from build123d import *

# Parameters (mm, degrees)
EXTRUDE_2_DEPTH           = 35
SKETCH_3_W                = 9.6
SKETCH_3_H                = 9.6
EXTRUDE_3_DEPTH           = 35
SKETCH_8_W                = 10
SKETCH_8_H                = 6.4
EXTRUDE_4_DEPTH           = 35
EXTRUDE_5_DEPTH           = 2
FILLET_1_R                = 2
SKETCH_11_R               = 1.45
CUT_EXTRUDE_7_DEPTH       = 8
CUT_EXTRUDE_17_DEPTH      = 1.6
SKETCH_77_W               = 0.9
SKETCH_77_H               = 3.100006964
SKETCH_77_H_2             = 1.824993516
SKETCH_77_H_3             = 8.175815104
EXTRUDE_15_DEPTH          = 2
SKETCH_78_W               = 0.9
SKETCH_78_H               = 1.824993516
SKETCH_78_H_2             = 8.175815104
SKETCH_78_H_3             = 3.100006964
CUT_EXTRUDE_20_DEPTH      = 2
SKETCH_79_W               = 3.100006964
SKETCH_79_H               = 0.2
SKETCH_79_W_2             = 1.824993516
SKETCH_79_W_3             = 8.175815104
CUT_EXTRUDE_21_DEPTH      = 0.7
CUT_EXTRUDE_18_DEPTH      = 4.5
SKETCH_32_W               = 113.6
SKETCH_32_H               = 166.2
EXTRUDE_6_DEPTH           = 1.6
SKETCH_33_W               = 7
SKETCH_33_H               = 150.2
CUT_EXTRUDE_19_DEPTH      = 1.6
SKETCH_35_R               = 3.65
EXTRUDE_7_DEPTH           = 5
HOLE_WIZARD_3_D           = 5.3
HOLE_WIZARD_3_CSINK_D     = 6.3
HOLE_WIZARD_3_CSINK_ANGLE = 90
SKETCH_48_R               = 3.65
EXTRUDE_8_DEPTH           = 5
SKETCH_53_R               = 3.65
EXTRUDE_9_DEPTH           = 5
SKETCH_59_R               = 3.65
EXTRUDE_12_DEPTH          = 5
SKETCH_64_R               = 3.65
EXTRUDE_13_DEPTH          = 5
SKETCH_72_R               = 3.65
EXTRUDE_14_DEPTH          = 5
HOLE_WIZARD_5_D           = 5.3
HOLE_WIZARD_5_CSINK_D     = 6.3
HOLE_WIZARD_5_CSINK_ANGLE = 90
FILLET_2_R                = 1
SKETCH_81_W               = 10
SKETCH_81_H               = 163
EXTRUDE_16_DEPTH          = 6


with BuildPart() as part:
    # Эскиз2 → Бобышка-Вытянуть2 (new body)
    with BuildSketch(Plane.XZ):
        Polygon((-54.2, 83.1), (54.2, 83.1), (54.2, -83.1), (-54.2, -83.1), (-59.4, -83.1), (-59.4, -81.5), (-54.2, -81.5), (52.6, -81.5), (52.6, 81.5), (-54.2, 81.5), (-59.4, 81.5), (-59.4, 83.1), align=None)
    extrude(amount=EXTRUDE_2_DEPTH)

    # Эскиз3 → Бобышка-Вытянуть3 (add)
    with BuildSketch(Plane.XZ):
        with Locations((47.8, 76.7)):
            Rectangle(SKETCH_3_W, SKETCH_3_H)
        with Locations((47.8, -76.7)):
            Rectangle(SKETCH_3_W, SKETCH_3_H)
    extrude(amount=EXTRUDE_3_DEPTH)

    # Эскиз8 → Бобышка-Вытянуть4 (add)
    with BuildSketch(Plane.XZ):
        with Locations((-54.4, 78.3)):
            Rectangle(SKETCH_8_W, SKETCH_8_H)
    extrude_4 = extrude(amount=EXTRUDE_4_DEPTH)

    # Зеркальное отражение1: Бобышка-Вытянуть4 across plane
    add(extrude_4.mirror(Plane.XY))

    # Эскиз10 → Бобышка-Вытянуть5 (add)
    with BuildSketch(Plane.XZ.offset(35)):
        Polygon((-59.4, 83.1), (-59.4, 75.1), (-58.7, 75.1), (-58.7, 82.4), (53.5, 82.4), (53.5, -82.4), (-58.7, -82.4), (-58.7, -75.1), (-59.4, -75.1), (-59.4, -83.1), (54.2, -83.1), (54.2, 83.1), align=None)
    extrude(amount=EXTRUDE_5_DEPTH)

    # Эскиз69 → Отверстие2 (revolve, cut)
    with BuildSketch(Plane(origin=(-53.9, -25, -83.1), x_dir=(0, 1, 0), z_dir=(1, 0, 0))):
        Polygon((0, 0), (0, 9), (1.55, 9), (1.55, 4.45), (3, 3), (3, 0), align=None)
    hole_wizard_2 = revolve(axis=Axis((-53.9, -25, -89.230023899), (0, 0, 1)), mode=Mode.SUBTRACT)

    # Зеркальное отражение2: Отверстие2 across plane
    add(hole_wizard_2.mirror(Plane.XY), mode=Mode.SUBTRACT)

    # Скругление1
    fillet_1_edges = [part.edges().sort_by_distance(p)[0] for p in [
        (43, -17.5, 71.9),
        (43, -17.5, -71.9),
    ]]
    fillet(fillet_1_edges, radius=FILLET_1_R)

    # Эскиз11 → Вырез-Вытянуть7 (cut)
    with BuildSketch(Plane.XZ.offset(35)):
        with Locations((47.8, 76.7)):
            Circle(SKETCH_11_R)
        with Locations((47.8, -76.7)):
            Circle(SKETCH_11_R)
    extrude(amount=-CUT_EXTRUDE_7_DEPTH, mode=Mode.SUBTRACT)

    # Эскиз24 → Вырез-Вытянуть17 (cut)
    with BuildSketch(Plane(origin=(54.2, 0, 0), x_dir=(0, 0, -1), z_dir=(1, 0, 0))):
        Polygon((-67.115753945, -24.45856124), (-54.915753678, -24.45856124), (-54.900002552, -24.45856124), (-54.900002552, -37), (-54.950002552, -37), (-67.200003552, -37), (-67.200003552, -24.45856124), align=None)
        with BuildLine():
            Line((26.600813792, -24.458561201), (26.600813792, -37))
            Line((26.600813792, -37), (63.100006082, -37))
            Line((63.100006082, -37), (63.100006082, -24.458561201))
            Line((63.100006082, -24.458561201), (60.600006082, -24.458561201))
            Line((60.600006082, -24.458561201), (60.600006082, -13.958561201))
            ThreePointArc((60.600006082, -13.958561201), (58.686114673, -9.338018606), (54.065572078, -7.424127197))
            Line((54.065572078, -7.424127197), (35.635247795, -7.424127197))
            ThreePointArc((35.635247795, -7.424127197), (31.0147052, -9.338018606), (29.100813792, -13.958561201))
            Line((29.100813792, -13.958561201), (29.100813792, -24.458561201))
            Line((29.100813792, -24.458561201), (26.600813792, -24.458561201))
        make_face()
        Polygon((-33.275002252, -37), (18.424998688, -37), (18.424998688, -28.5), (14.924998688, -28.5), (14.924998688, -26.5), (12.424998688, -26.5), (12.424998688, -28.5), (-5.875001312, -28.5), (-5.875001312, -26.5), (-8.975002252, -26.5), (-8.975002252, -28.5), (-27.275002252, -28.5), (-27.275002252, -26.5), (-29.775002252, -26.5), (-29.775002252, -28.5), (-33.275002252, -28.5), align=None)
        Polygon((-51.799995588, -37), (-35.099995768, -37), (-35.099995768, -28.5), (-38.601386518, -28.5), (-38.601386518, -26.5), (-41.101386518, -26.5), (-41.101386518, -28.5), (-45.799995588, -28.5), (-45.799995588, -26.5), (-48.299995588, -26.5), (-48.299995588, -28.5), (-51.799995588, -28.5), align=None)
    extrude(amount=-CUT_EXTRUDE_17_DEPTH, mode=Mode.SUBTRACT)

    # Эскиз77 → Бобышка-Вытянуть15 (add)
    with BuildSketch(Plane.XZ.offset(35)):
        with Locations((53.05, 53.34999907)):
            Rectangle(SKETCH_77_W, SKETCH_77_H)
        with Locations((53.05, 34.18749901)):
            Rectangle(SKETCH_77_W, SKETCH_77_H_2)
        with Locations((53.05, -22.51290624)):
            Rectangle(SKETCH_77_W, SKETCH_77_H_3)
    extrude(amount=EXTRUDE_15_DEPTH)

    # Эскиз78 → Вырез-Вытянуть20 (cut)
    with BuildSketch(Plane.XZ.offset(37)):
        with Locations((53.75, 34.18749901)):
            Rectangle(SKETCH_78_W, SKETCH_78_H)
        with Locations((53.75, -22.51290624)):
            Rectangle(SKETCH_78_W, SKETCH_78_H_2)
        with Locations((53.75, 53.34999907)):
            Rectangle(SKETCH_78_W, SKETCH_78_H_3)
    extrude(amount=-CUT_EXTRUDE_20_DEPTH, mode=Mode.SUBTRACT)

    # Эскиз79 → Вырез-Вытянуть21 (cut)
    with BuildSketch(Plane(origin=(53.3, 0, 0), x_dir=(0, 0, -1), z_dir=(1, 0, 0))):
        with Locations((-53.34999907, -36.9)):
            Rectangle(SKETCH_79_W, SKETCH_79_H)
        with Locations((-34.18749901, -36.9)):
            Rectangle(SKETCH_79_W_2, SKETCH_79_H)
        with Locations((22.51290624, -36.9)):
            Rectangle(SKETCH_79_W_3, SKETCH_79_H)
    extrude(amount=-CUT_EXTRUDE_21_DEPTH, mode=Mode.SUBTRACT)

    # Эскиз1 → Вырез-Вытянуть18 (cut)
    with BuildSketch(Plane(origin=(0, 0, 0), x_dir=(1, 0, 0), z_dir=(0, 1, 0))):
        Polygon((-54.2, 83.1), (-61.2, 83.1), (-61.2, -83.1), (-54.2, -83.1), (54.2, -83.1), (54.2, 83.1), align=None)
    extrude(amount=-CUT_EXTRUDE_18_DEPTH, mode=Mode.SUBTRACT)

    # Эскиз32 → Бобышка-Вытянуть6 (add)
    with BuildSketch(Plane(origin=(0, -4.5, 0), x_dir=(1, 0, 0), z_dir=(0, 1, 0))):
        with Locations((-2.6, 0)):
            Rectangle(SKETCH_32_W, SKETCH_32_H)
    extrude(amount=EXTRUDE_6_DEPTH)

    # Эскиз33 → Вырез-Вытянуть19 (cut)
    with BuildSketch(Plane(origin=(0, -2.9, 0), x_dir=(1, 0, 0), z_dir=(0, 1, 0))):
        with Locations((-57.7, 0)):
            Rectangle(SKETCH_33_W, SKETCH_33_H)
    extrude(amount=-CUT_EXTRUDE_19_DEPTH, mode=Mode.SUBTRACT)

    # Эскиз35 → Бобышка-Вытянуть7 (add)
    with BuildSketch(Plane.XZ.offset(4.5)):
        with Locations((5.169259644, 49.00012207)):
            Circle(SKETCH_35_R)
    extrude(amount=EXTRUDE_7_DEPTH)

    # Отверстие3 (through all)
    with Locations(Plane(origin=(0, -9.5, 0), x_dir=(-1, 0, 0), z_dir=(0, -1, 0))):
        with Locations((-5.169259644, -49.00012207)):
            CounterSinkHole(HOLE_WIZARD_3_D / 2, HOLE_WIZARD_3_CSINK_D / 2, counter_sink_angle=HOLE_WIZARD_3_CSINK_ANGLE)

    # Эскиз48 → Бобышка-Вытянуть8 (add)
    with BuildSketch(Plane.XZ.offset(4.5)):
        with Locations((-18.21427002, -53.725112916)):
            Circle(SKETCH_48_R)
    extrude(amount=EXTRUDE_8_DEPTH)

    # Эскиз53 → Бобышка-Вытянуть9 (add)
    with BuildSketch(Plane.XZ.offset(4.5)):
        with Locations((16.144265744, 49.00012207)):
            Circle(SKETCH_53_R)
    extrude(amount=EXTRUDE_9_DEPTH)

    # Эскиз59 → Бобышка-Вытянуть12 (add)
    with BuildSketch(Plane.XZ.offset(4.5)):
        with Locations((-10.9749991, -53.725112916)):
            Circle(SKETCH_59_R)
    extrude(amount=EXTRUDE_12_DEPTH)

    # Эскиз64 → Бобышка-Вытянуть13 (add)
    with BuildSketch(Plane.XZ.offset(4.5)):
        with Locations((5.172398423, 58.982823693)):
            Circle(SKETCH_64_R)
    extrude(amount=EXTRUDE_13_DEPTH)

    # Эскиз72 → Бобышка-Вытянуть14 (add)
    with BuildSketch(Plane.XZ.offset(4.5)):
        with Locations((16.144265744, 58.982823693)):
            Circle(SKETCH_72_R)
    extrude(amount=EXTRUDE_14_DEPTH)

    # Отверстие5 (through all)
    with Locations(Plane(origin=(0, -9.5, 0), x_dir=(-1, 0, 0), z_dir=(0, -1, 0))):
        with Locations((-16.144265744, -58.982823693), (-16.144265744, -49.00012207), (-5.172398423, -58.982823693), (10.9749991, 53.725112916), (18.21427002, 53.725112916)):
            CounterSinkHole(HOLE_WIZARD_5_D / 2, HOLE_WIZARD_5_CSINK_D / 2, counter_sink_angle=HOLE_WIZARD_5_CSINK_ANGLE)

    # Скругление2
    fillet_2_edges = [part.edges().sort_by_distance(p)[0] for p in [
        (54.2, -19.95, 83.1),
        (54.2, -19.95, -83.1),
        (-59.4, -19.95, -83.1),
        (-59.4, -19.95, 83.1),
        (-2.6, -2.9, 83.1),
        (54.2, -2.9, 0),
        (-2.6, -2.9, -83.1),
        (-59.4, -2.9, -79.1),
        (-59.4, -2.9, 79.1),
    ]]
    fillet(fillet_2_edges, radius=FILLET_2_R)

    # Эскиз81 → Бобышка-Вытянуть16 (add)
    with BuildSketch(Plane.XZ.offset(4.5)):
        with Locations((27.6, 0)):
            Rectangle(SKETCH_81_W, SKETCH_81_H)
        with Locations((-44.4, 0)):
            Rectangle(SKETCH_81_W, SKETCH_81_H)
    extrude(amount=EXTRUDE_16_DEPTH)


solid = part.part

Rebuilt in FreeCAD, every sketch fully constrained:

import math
import FreeCAD as App
import Part
import Sketcher

V = App.Vector
Q = App.Units.Quantity


def edges_at(feature, points):
    """Names of the edges that pass closest to the given points."""
    edges = feature.Shape.Edges
    near = lambda p: min(range(len(edges)), key=lambda i: edges[i].distToShape(Part.Vertex(*p))[0])
    return sorted({f"Edge{near(p) + 1}" for p in points})

doc = App.newDocument("Part")
body = doc.addObject("PartDesign::Body", "Body")

sketch1 = body.newObject("Sketcher::SketchObject", "Sketch")
sketch1.AttachmentSupport = (doc.getObject("XZ_Plane"), [""])
sketch1.MapMode = "FlatFace"
sketch1.addGeometry([
    Part.LineSegment(V(54.2, 83.1, 0), V(-59.4, 83.1, 0)),
    Part.LineSegment(V(-59.4, 83.1, 0), V(-59.4, 81.5, 0)),
    Part.LineSegment(V(-59.4, 81.5, 0), V(52.6, 81.5, 0)),
    Part.LineSegment(V(52.6, 81.5, 0), V(52.6, -81.5, 0)),
    Part.LineSegment(V(52.6, -81.5, 0), V(-59.4, -81.5, 0)),
    Part.LineSegment(V(-59.4, -81.5, 0), V(-59.4, -83.1, 0)),
    Part.LineSegment(V(-59.4, -83.1, 0), V(54.2, -83.1, 0)),
    Part.LineSegment(V(54.2, -83.1, 0), V(54.2, 83.1, 0)),
], False)
sketch1.addConstraint([
    Sketcher.Constraint("Coincident", 0, 2, 1, 1),
    Sketcher.Constraint("Coincident", 1, 2, 2, 1),
    Sketcher.Constraint("Coincident", 2, 2, 3, 1),
    Sketcher.Constraint("Coincident", 3, 2, 4, 1),
    Sketcher.Constraint("Coincident", 4, 2, 5, 1),
    Sketcher.Constraint("Coincident", 5, 2, 6, 1),
    Sketcher.Constraint("Coincident", 6, 2, 7, 1),
    Sketcher.Constraint("Coincident", 7, 2, 0, 1),
    Sketcher.Constraint("Horizontal", 0),
    Sketcher.Constraint("Vertical", 1),
    Sketcher.Constraint("Horizontal", 2),
    Sketcher.Constraint("Vertical", 3),
    Sketcher.Constraint("Horizontal", 4),
    Sketcher.Constraint("Vertical", 5),
    Sketcher.Constraint("Horizontal", 6),
    Sketcher.Constraint("Vertical", 7),
    Sketcher.Constraint("Symmetric", 1, 2, 4, 2, -1),
    Sketcher.Constraint("Equal", 1, 5),
    Sketcher.Constraint("DistanceX", 2, 1, 2, 2, Q("112 mm")),
    Sketcher.Constraint("DistanceY", 3, 2, 3, 1, Q("163 mm")),
    Sketcher.Constraint("DistanceX", 0, 2, 0, 1, Q("113.6 mm")),
    Sketcher.Constraint("DistanceY", 1, 2, 1, 1, Q("1.6 mm")),
    Sketcher.Constraint("DistanceX", 0, 2, -1, 1, Q("59.4 mm")),
])
pad1 = body.newObject("PartDesign::Pad", "Pad")
pad1.Profile = sketch1
pad1.Length = 35

sketch2 = body.newObject("Sketcher::SketchObject", "Sketch001")
sketch2.AttachmentSupport = (doc.getObject("XZ_Plane"), [""])
sketch2.MapMode = "FlatFace"
sketch2.addGeometry([
    Part.LineSegment(V(43, 82, 0), V(43, 72, 0)),
    Part.LineSegment(V(43, 72, 0), V(53, 72, 0)),
    Part.LineSegment(V(53, 72, 0), V(53, 82, 0)),
    Part.LineSegment(V(53, 82, 0), V(43, 82, 0)),
    Part.LineSegment(V(43, -72, 0), V(43, -82, 0)),
    Part.LineSegment(V(43, -82, 0), V(53, -82, 0)),
    Part.LineSegment(V(53, -82, 0), V(53, -72, 0)),
    Part.LineSegment(V(53, -72, 0), V(43, -72, 0)),
], False)
sketch2.addConstraint([
    Sketcher.Constraint("Coincident", 0, 2, 1, 1),
    Sketcher.Constraint("Coincident", 1, 2, 2, 1),
    Sketcher.Constraint("Coincident", 2, 2, 3, 1),
    Sketcher.Constraint("Coincident", 3, 2, 0, 1),
    Sketcher.Constraint("Coincident", 4, 2, 5, 1),
    Sketcher.Constraint("Coincident", 5, 2, 6, 1),
    Sketcher.Constraint("Coincident", 6, 2, 7, 1),
    Sketcher.Constraint("Coincident", 7, 2, 4, 1),
    Sketcher.Constraint("Vertical", 0),
    Sketcher.Constraint("Horizontal", 1),
    Sketcher.Constraint("Vertical", 2),
    Sketcher.Constraint("Horizontal", 3),
    Sketcher.Constraint("Vertical", 4),
    Sketcher.Constraint("Horizontal", 5),
    Sketcher.Constraint("Vertical", 6),
    Sketcher.Constraint("Horizontal", 7),
    Sketcher.Constraint("Symmetric", 3, 2, 4, 2, -1),
    Sketcher.Constraint("Symmetric", 1, 2, 6, 2, -1),
    Sketcher.Constraint("Equal", 7, 0),
    Sketcher.Constraint("DistanceX", 1, 1, 1, 2, Q("9.6 mm")),
    Sketcher.Constraint("DistanceX", -1, 1, 0, 2, Q("43 mm")),
    Sketcher.Constraint("DistanceY", 4, 2, 3, 2, Q("163 mm")),
])
pad2 = body.newObject("PartDesign::Pad", "Pad001")
pad2.Profile = sketch2
pad2.Length = 35

sketch3 = body.newObject("Sketcher::SketchObject", "Sketch002")
sketch3.AttachmentSupport = (doc.getObject("XZ_Plane"), [""])
sketch3.MapMode = "FlatFace"
sketch3.addGeometry([
    Part.LineSegment(V(-59, 82, 0), V(-59, 75, 0)),
    Part.LineSegment(V(-59, 75, 0), V(-49, 75, 0)),
    Part.LineSegment(V(-49, 75, 0), V(-49, 82, 0)),
    Part.LineSegment(V(-49, 82, 0), V(-59, 82, 0)),
], False)
sketch3.addConstraint([
    Sketcher.Constraint("Coincident", 0, 2, 1, 1),
    Sketcher.Constraint("Coincident", 1, 2, 2, 1),
    Sketcher.Constraint("Coincident", 2, 2, 3, 1),
    Sketcher.Constraint("Coincident", 3, 2, 0, 1),
    Sketcher.Constraint("Vertical", 0),
    Sketcher.Constraint("Horizontal", 1),
    Sketcher.Constraint("Vertical", 2),
    Sketcher.Constraint("Horizontal", 3),
    Sketcher.Constraint("DistanceX", 1, 1, 1, 2, Q("10 mm")),
    Sketcher.Constraint("DistanceY", 0, 2, 0, 1, Q("6.4 mm")),
    Sketcher.Constraint("DistanceX", 0, 2, -1, 1, Q("59.4 mm")),
    Sketcher.Constraint("DistanceY", -1, 1, 0, 2, Q("75.1 mm")),
])
pad3 = body.newObject("PartDesign::Pad", "Pad002")
pad3.Profile = sketch3
pad3.Length = 35
doc.recompute()

mirrored = body.newObject("PartDesign::Mirrored", "Mirrored")
mirrored.Originals = [pad3]
mirrored.MirrorPlane = (doc.getObject("XY_Plane"), [""])
body.Tip = mirrored

sketch4 = body.newObject("Sketcher::SketchObject", "Sketch003")
sketch4.AttachmentSupport = (doc.getObject("XZ_Plane"), [""])
sketch4.MapMode = "FlatFace"
sketch4.AttachmentOffset = App.Placement(V(0, 0, 35), App.Rotation())
sketch4.addGeometry([
    Part.LineSegment(V(-59.4, 83.1, 0), V(-59.4, 75.1, 0)),
    Part.LineSegment(V(-59.4, 75.1, 0), V(-58.7, 75.1, 0)),
    Part.LineSegment(V(-58.7, 75.1, 0), V(-58.7, 82.4, 0)),
    Part.LineSegment(V(-58.7, 82.4, 0), V(53.5, 82.4, 0)),
    Part.LineSegment(V(53.5, 82.4, 0), V(53.5, -82.4, 0)),
    Part.LineSegment(V(53.5, -82.4, 0), V(-58.7, -82.4, 0)),
    Part.LineSegment(V(-58.7, -82.4, 0), V(-58.7, -75.1, 0)),
    Part.LineSegment(V(-58.7, -75.1, 0), V(-59.4, -75.1, 0)),
    Part.LineSegment(V(-59.4, -75.1, 0), V(-59.4, -83.1, 0)),
    Part.LineSegment(V(-59.4, -83.1, 0), V(54.2, -83.1, 0)),
    Part.LineSegment(V(54.2, -83.1, 0), V(54.2, 83.1, 0)),
    Part.LineSegment(V(54.2, 83.1, 0), V(-59.4, 83.1, 0)),
], False)
sketch4.addConstraint([
    Sketcher.Constraint("Coincident", 0, 2, 1, 1),
    Sketcher.Constraint("Coincident", 1, 2, 2, 1),
    Sketcher.Constraint("Coincident", 2, 2, 3, 1),
    Sketcher.Constraint("Coincident", 3, 2, 4, 1),
    Sketcher.Constraint("Coincident", 4, 2, 5, 1),
    Sketcher.Constraint("Coincident", 5, 2, 6, 1),
    Sketcher.Constraint("Coincident", 6, 2, 7, 1),
    Sketcher.Constraint("Coincident", 7, 2, 8, 1),
    Sketcher.Constraint("Coincident", 8, 2, 9, 1),
    Sketcher.Constraint("Coincident", 9, 2, 10, 1),
    Sketcher.Constraint("Coincident", 10, 2, 11, 1),
    Sketcher.Constraint("Coincident", 11, 2, 0, 1),
    Sketcher.Constraint("Vertical", 0),
    Sketcher.Constraint("Horizontal", 1),
    Sketcher.Constraint("Vertical", 2),
    Sketcher.Constraint("Horizontal", 3),
    Sketcher.Constraint("Vertical", 4),
    Sketcher.Constraint("Horizontal", 5),
    Sketcher.Constraint("Vertical", 6),
    Sketcher.Constraint("Horizontal", 7),
    Sketcher.Constraint("Vertical", 8),
    Sketcher.Constraint("Horizontal", 9),
    Sketcher.Constraint("Vertical", 10),
    Sketcher.Constraint("Horizontal", 11),
    Sketcher.Constraint("Symmetric", 2, 2, 5, 2, -1),
    Sketcher.Constraint("Symmetric", 0, 2, 7, 2, -1),
    Sketcher.Constraint("Equal", 0, 8),
    Sketcher.Constraint("DistanceY", 0, 2, 0, 1, Q("8 mm")),
    Sketcher.Constraint("DistanceX", 1, 1, 1, 2, Q("0.7 mm")),
    Sketcher.Constraint("DistanceX", 3, 1, 3, 2, Q("112.2 mm")),
    Sketcher.Constraint("DistanceX", 9, 1, 9, 2, Q("113.6 mm")),
    Sketcher.Constraint("DistanceY", 2, 1, 2, 2, Q("7.3 mm")),
    Sketcher.Constraint("DistanceY", 4, 2, 4, 1, Q("164.8 mm")),
    Sketcher.Constraint("DistanceX", 0, 2, -1, 1, Q("59.4 mm")),
])
pad4 = body.newObject("PartDesign::Pad", "Pad003")
pad4.Profile = sketch4
pad4.Length = 2

sketch5 = body.newObject("Sketcher::SketchObject", "Sketch004")
sketch5.AttachmentSupport = (doc.getObject("YZ_Plane"), [""])
sketch5.MapMode = "FlatFace"
sketch5.AttachmentOffset = App.Placement(V(0, 0, -53.9), App.Rotation())
sketch5.addGeometry([
    Part.LineSegment(V(-25, -74.1, 0), V(-25, -83.1, 0)),
    Part.LineSegment(V(-25, -83.1, 0), V(-22, -83.1, 0)),
    Part.LineSegment(V(-22, -83.1, 0), V(-22, -80.1, 0)),
    Part.LineSegment(V(-22, -80.1, 0), V(-23.4, -78.7, 0)),
    Part.LineSegment(V(-23.4, -78.7, 0), V(-23.4, -74.1, 0)),
    Part.LineSegment(V(-23.4, -74.1, 0), V(-25, -74.1, 0)),
], False)
sketch5.addGeometry(Part.LineSegment(V(-25, -83.1, 0), V(-25, -74.1, 0)), True)
sketch5.addConstraint([
    Sketcher.Constraint("Coincident", 0, 2, 1, 1),
    Sketcher.Constraint("Coincident", 1, 2, 2, 1),
    Sketcher.Constraint("Coincident", 2, 2, 3, 1),
    Sketcher.Constraint("Coincident", 3, 2, 4, 1),
    Sketcher.Constraint("Coincident", 4, 2, 5, 1),
    Sketcher.Constraint("Coincident", 5, 2, 0, 1),
    Sketcher.Constraint("Vertical", 0),
    Sketcher.Constraint("Horizontal", 1),
    Sketcher.Constraint("Vertical", 2),
    Sketcher.Constraint("Vertical", 4),
    Sketcher.Constraint("Horizontal", 5),
    Sketcher.Constraint("Vertical", 6),
    Sketcher.Constraint("Coincident", 6, 1, 0, 2),
    Sketcher.Constraint("Horizontal", 4, 2, 6, 2),
    Sketcher.Constraint("Equal", 1, 2),
    Sketcher.Constraint("DistanceX", 1, 1, 1, 2, Q("3 mm")),
    Sketcher.Constraint("DistanceY", 0, 2, 0, 1, Q("9 mm")),
    Sketcher.Constraint("Angle", 3, Q("135 deg")),
    Sketcher.Constraint("DistanceX", 0, 2, -1, 1, Q("25 mm")),
    Sketcher.Constraint("DistanceX", 5, 2, 5, 1, Q("1.55 mm")),
    Sketcher.Constraint("DistanceY", 0, 2, -1, 1, Q("83.1 mm")),
])
groove = body.newObject("PartDesign::Groove", "Groove")
groove.Profile = sketch5
groove.ReferenceAxis = (sketch5, ["Axis0"])
groove.Angle = 360
doc.recompute()

mirrored2 = body.newObject("PartDesign::Mirrored", "Mirrored001")
mirrored2.Originals = [groove]
mirrored2.MirrorPlane = (doc.getObject("XY_Plane"), [""])
body.Tip = mirrored2
doc.recompute()

fillet = body.newObject("PartDesign::Fillet", "Fillet")
fillet.Base = (mirrored2, edges_at(mirrored2, [(43, -17.5, 71.9), (43, -17.5, -71.9)]))
fillet.Radius = 2

sketch6 = body.newObject("Sketcher::SketchObject", "Sketch005")
sketch6.AttachmentSupport = (doc.getObject("XZ_Plane"), [""])
sketch6.MapMode = "FlatFace"
sketch6.AttachmentOffset = App.Placement(V(0, 0, 35), App.Rotation())
sketch6.addGeometry([
    Part.Circle(V(47.8, 76.7, 0), V(0, 0, 1), 1.4),
    Part.Circle(V(47.8, -76.7, 0), V(0, 0, 1), 1.4),
], False)
sketch6.addConstraint([
    Sketcher.Constraint("Equal", 0, 1),
    Sketcher.Constraint("Symmetric", 0, 3, 1, 3, -1),
    Sketcher.Constraint("Diameter", 0, Q("2.9 mm")),
    Sketcher.Constraint("DistanceX", -1, 1, 0, 3, Q("47.8 mm")),
    Sketcher.Constraint("DistanceY", -1, 1, 0, 3, Q("76.7 mm")),
])
pocket1 = body.newObject("PartDesign::Pocket", "Pocket")
pocket1.Profile = sketch6
pocket1.Length = 8

sketch7 = body.newObject("Sketcher::SketchObject", "Sketch006")
sketch7.AttachmentSupport = (doc.getObject("YZ_Plane"), [""])
sketch7.MapMode = "FlatFace"
sketch7.AttachmentOffset = App.Placement(V(0, 0, 54.2), App.Rotation())
sketch7.addGeometry([
    Part.LineSegment(V(-24.5, 54.9, 0), V(-24.5, 67.2, 0)),
    Part.LineSegment(V(-24.5, 67.2, 0), V(-37, 67.2, 0)),
    Part.LineSegment(V(-37, 67.2, 0), V(-37, 54.9, 0)),
    Part.LineSegment(V(-37, 54.9, 0), V(-24.5, 54.9, 0)),
    Part.LineSegment(V(-24.5, -26.6, 0), V(-37, -26.6, 0)),
    Part.LineSegment(V(-37, -26.6, 0), V(-37, -63.1, 0)),
    Part.LineSegment(V(-37, -63.1, 0), V(-24.5, -63.1, 0)),
    Part.LineSegment(V(-24.5, -63.1, 0), V(-24.5, -60.6, 0)),
    Part.LineSegment(V(-24.5, -60.6, 0), V(-14, -60.6, 0)),
    Part.ArcOfCircle(Part.Circle(V(-14, -54.1, 0), V(0, 0, 1), 6.5), math.radians(-90), math.radians(0)),
    Part.LineSegment(V(-7.4, -54.1, 0), V(-7.4, -35.6, 0)),
    Part.ArcOfCircle(Part.Circle(V(-14, -35.6, 0), V(0, 0, 1), 6.5), math.radians(0), math.radians(90)),
    Part.LineSegment(V(-14, -29.1, 0), V(-24.5, -29.1, 0)),
    Part.LineSegment(V(-24.5, -29.1, 0), V(-24.5, -26.6, 0)),
    Part.LineSegment(V(-37, 33.3, 0), V(-37, -18.4, 0)),
    Part.LineSegment(V(-37, -18.4, 0), V(-28.5, -18.4, 0)),
    Part.LineSegment(V(-28.5, -18.4, 0), V(-28.5, -14.9, 0)),
    Part.LineSegment(V(-28.5, -14.9, 0), V(-26.5, -14.9, 0)),
    Part.LineSegment(V(-26.5, -14.9, 0), V(-26.5, -12.4, 0)),
    Part.LineSegment(V(-26.5, -12.4, 0), V(-28.5, -12.4, 0)),
    Part.LineSegment(V(-28.5, -12.4, 0), V(-28.5, 5.9, 0)),
    Part.LineSegment(V(-28.5, 5.9, 0), V(-26.5, 5.9, 0)),
    Part.LineSegment(V(-26.5, 5.9, 0), V(-26.5, 9, 0)),
    Part.LineSegment(V(-26.5, 9, 0), V(-28.5, 9, 0)),
    Part.LineSegment(V(-28.5, 9, 0), V(-28.5, 27.3, 0)),
    Part.LineSegment(V(-28.5, 27.3, 0), V(-26.5, 27.3, 0)),
    Part.LineSegment(V(-26.5, 27.3, 0), V(-26.5, 29.8, 0)),
    Part.LineSegment(V(-26.5, 29.8, 0), V(-28.5, 29.8, 0)),
    Part.LineSegment(V(-28.5, 29.8, 0), V(-28.5, 33.3, 0)),
    Part.LineSegment(V(-28.5, 33.3, 0), V(-37, 33.3, 0)),
    Part.LineSegment(V(-37, 51.8, 0), V(-37, 35.1, 0)),
    Part.LineSegment(V(-37, 35.1, 0), V(-28.5, 35.1, 0)),
    Part.LineSegment(V(-28.5, 35.1, 0), V(-28.5, 38.6, 0)),
    Part.LineSegment(V(-28.5, 38.6, 0), V(-26.5, 38.6, 0)),
    Part.LineSegment(V(-26.5, 38.6, 0), V(-26.5, 41.1, 0)),
    Part.LineSegment(V(-26.5, 41.1, 0), V(-28.5, 41.1, 0)),
    Part.LineSegment(V(-28.5, 41.1, 0), V(-28.5, 45.8, 0)),
    Part.LineSegment(V(-28.5, 45.8, 0), V(-26.5, 45.8, 0)),
    Part.LineSegment(V(-26.5, 45.8, 0), V(-26.5, 48.3, 0)),
    Part.LineSegment(V(-26.5, 48.3, 0), V(-28.5, 48.3, 0)),
    Part.LineSegment(V(-28.5, 48.3, 0), V(-28.5, 51.8, 0)),
    Part.LineSegment(V(-28.5, 51.8, 0), V(-37, 51.8, 0)),
], False)
sketch7.addConstraint([
    Sketcher.Constraint("Coincident", 0, 2, 1, 1),
    Sketcher.Constraint("Coincident", 1, 2, 2, 1),
    Sketcher.Constraint("Coincident", 2, 2, 3, 1),
    Sketcher.Constraint("Coincident", 3, 2, 0, 1),
    Sketcher.Constraint("Coincident", 4, 2, 5, 1),
    Sketcher.Constraint("Coincident", 5, 2, 6, 1),
    Sketcher.Constraint("Coincident", 6, 2, 7, 1),
    Sketcher.Constraint("Coincident", 7, 2, 8, 1),
    Sketcher.Constraint("Tangent", 8, 2, 9, 1),
    Sketcher.Constraint("Tangent", 9, 2, 10, 1),
    Sketcher.Constraint("Tangent", 10, 2, 11, 1),
    Sketcher.Constraint("Tangent", 11, 2, 12, 1),
    Sketcher.Constraint("Coincident", 12, 2, 13, 1),
    Sketcher.Constraint("Coincident", 13, 2, 4, 1),
    Sketcher.Constraint("Coincident", 14, 2, 15, 1),
    Sketcher.Constraint("Coincident", 15, 2, 16, 1),
    Sketcher.Constraint("Coincident", 16, 2, 17, 1),
    Sketcher.Constraint("Coincident", 17, 2, 18, 1),
    Sketcher.Constraint("Coincident", 18, 2, 19, 1),
    Sketcher.Constraint("Coincident", 19, 2, 20, 1),
    Sketcher.Constraint("Coincident", 20, 2, 21, 1),
    Sketcher.Constraint("Coincident", 21, 2, 22, 1),
    Sketcher.Constraint("Coincident", 22, 2, 23, 1),
    Sketcher.Constraint("Coincident", 23, 2, 24, 1),
    Sketcher.Constraint("Coincident", 24, 2, 25, 1),
    Sketcher.Constraint("Coincident", 25, 2, 26, 1),
    Sketcher.Constraint("Coincident", 26, 2, 27, 1),
    Sketcher.Constraint("Coincident", 27, 2, 28, 1),
    Sketcher.Constraint("Coincident", 28, 2, 29, 1),
    Sketcher.Constraint("Coincident", 29, 2, 14, 1),
    Sketcher.Constraint("Coincident", 30, 2, 31, 1),
    Sketcher.Constraint("Coincident", 31, 2, 32, 1),
    Sketcher.Constraint("Coincident", 32, 2, 33, 1),
    Sketcher.Constraint("Coincident", 33, 2, 34, 1),
    Sketcher.Constraint("Coincident", 34, 2, 35, 1),
    Sketcher.Constraint("Coincident", 35, 2, 36, 1),
    Sketcher.Constraint("Coincident", 36, 2, 37, 1),
    Sketcher.Constraint("Coincident", 37, 2, 38, 1),
    Sketcher.Constraint("Coincident", 38, 2, 39, 1),
    Sketcher.Constraint("Coincident", 39, 2, 40, 1),
    Sketcher.Constraint("Coincident", 40, 2, 41, 1),
    Sketcher.Constraint("Coincident", 41, 2, 30, 1),
    Sketcher.Constraint("Vertical", 0),
    Sketcher.Constraint("Horizontal", 1),
    Sketcher.Constraint("Vertical", 2),
    Sketcher.Constraint("Horizontal", 3),
    Sketcher.Constraint("Horizontal", 4),
    Sketcher.Constraint("Vertical", 5),
    Sketcher.Constraint("Horizontal", 6),
    Sketcher.Constraint("Vertical", 7),
    Sketcher.Constraint("Horizontal", 8),
    Sketcher.Constraint("Vertical", 10),
    Sketcher.Constraint("Horizontal", 12),
    Sketcher.Constraint("Vertical", 13),
    Sketcher.Constraint("Vertical", 14),
    Sketcher.Constraint("Horizontal", 15),
    Sketcher.Constraint("Vertical", 16),
    Sketcher.Constraint("Horizontal", 17),
    Sketcher.Constraint("Vertical", 18),
    Sketcher.Constraint("Horizontal", 19),
    Sketcher.Constraint("Vertical", 20),
    Sketcher.Constraint("Horizontal", 21),
    Sketcher.Constraint("Vertical", 22),
    Sketcher.Constraint("Horizontal", 23),
    Sketcher.Constraint("Vertical", 24),
    Sketcher.Constraint("Horizontal", 25),
    Sketcher.Constraint("Vertical", 26),
    Sketcher.Constraint("Horizontal", 27),
    Sketcher.Constraint("Vertical", 28),
    Sketcher.Constraint("Horizontal", 29),
    Sketcher.Constraint("Vertical", 30),
    Sketcher.Constraint("Horizontal", 31),
    Sketcher.Constraint("Vertical", 32),
    Sketcher.Constraint("Horizontal", 33),
    Sketcher.Constraint("Vertical", 34),
    Sketcher.Constraint("Horizontal", 35),
    Sketcher.Constraint("Vertical", 36),
    Sketcher.Constraint("Horizontal", 37),
    Sketcher.Constraint("Vertical", 38),
    Sketcher.Constraint("Horizontal", 39),
    Sketcher.Constraint("Vertical", 40),
    Sketcher.Constraint("Horizontal", 41),
    Sketcher.Constraint("Equal", 9, 11),
    Sketcher.Constraint("Vertical", 2, 2, 4, 2),
    Sketcher.Constraint("Vertical", 3, 2, 6, 2),
    Sketcher.Constraint("Vertical", 7, 2, 12, 2),
    Sketcher.Constraint("Vertical", 5, 2, 14, 2),
    Sketcher.Constraint("Vertical", 16, 2, 19, 2),
    Sketcher.Constraint("Vertical", 18, 2, 21, 2),
    Sketcher.Constraint("Vertical", 20, 2, 23, 2),
    Sketcher.Constraint("Vertical", 22, 2, 25, 2),
    Sketcher.Constraint("Vertical", 24, 2, 27, 2),
    Sketcher.Constraint("Vertical", 29, 2, 30, 2),
    Sketcher.Constraint("Vertical", 28, 2, 31, 2),
    Sketcher.Constraint("Vertical", 26, 2, 33, 2),
    Sketcher.Constraint("Vertical", 32, 2, 35, 2),
    Sketcher.Constraint("Vertical", 34, 2, 37, 2),
    Sketcher.Constraint("Vertical", 36, 2, 39, 2),
    Sketcher.Constraint("Equal", 7, 13),
    Sketcher.Constraint("Equal", 13, 18),
    Sketcher.Constraint("Equal", 20, 24),
    Sketcher.Constraint("Equal", 18, 26),
    Sketcher.Constraint("Equal", 16, 28),
    Sketcher.Constraint("Equal", 26, 34),
    Sketcher.Constraint("Equal", 34, 38),
    Sketcher.Constraint("Equal", 28, 40),
    Sketcher.Constraint("DistanceX", 17, 1, 17, 2, Q("2 mm")),
    Sketcher.Constraint("DistanceX", 8, 1, 8, 2, Q("10.5 mm")),
    Sketcher.Constraint("DistanceX", 15, 1, 15, 2, Q("8.5 mm")),
    Sketcher.Constraint("DistanceY", 0, 1, 0, 2, Q("12.300001 mm")),
    Sketcher.Constraint("DistanceY", 7, 1, 7, 2, Q("2.5 mm")),
    Sketcher.Constraint("DistanceY", 14, 2, 14, 1, Q("51.700001 mm")),
    Sketcher.Constraint("DistanceY", 16, 1, 16, 2, Q("3.5 mm")),
    Sketcher.Constraint("DistanceY", 20, 1, 20, 2, Q("18.3 mm")),
    Sketcher.Constraint("DistanceY", 30, 2, 30, 1, Q("16.7 mm")),
    Sketcher.Constraint("DistanceX", 1, 2, -1, 1, Q("37 mm")),
    Sketcher.Constraint("DistanceY", 14, 2, -1, 1, Q("18.424999 mm")),
    Sketcher.Constraint("Radius", 9, Q("6.534434 mm")),
    Sketcher.Constraint("DistanceY", 24, 2, 3, 2, Q("27.625 mm")),
    Sketcher.Constraint("DistanceX", 1, 2, 1, 1, Q("12.541439 mm")),
    Sketcher.Constraint("DistanceY", 32, 1, 32, 2, Q("3.501391 mm")),
    Sketcher.Constraint("DistanceY", 5, 2, 5, 1, Q("36.499192 mm")),
    Sketcher.Constraint("DistanceY", 11, 3, 0, 2, Q("102.835251 mm")),
    Sketcher.Constraint("DistanceY", -1, 1, 30, 2, Q("35.099996 mm")),
])
pocket2 = body.newObject("PartDesign::Pocket", "Pocket001")
pocket2.Profile = sketch7
pocket2.Length = 1.6

sketch8 = body.newObject("Sketcher::SketchObject", "Sketch007")
sketch8.AttachmentSupport = (doc.getObject("XZ_Plane"), [""])
sketch8.MapMode = "FlatFace"
sketch8.AttachmentOffset = App.Placement(V(0, 0, 35), App.Rotation())
sketch8.addGeometry([
    Part.LineSegment(V(52.6, 54.9, 0), V(52.6, 51.8, 0)),
    Part.LineSegment(V(52.6, 51.8, 0), V(53.5, 51.8, 0)),
    Part.LineSegment(V(53.5, 51.8, 0), V(53.5, 54.9, 0)),
    Part.LineSegment(V(53.5, 54.9, 0), V(52.6, 54.9, 0)),
    Part.LineSegment(V(52.6, 35.1, 0), V(52.6, 33.3, 0)),
    Part.LineSegment(V(52.6, 33.3, 0), V(53.5, 33.3, 0)),
    Part.LineSegment(V(53.5, 33.3, 0), V(53.5, 35.1, 0)),
    Part.LineSegment(V(53.5, 35.1, 0), V(52.6, 35.1, 0)),
    Part.LineSegment(V(52.6, -18.4, 0), V(52.6, -26.6, 0)),
    Part.LineSegment(V(52.6, -26.6, 0), V(53.5, -26.6, 0)),
    Part.LineSegment(V(53.5, -26.6, 0), V(53.5, -18.4, 0)),
    Part.LineSegment(V(53.5, -18.4, 0), V(52.6, -18.4, 0)),
], False)
sketch8.addConstraint([
    Sketcher.Constraint("Coincident", 0, 2, 1, 1),
    Sketcher.Constraint("Coincident", 1, 2, 2, 1),
    Sketcher.Constraint("Coincident", 2, 2, 3, 1),
    Sketcher.Constraint("Coincident", 3, 2, 0, 1),
    Sketcher.Constraint("Coincident", 4, 2, 5, 1),
    Sketcher.Constraint("Coincident", 5, 2, 6, 1),
    Sketcher.Constraint("Coincident", 6, 2, 7, 1),
    Sketcher.Constraint("Coincident", 7, 2, 4, 1),
    Sketcher.Constraint("Coincident", 8, 2, 9, 1),
    Sketcher.Constraint("Coincident", 9, 2, 10, 1),
    Sketcher.Constraint("Coincident", 10, 2, 11, 1),
    Sketcher.Constraint("Coincident", 11, 2, 8, 1),
    Sketcher.Constraint("Vertical", 0),
    Sketcher.Constraint("Horizontal", 1),
    Sketcher.Constraint("Vertical", 2),
    Sketcher.Constraint("Horizontal", 3),
    Sketcher.Constraint("Vertical", 4),
    Sketcher.Constraint("Horizontal", 5),
    Sketcher.Constraint("Vertical", 6),
    Sketcher.Constraint("Horizontal", 7),
    Sketcher.Constraint("Vertical", 8),
    Sketcher.Constraint("Horizontal", 9),
    Sketcher.Constraint("Vertical", 10),
    Sketcher.Constraint("Horizontal", 11),
    Sketcher.Constraint("Vertical", 3, 2, 4, 2),
    Sketcher.Constraint("Vertical", 2, 2, 5, 2),
    Sketcher.Constraint("Vertical", 7, 2, 8, 2),
    Sketcher.Constraint("Vertical", 6, 2, 9, 2),
    Sketcher.Constraint("DistanceX", 1, 1, 1, 2, Q("0.9 mm")),
    Sketcher.Constraint("DistanceX", -1, 1, 0, 2, Q("52.6 mm")),
    Sketcher.Constraint("DistanceY", 6, 2, 1, 2, Q("16.7 mm")),
    Sketcher.Constraint("DistanceY", 10, 2, 5, 2, Q("51.700001 mm")),
    Sketcher.Constraint("DistanceY", 10, 2, -1, 1, Q("18.424999 mm")),
    Sketcher.Constraint("DistanceY", 4, 2, 3, 2, Q("21.625 mm")),
    Sketcher.Constraint("DistanceY", 0, 2, 0, 1, Q("3.100007 mm")),
    Sketcher.Constraint("DistanceY", 8, 2, 8, 1, Q("8.175815 mm")),
])
pad5 = body.newObject("PartDesign::Pad", "Pad004")
pad5.Profile = sketch8
pad5.Length = 2

sketch9 = body.newObject("Sketcher::SketchObject", "Sketch008")
sketch9.AttachmentSupport = (doc.getObject("XZ_Plane"), [""])
sketch9.MapMode = "FlatFace"
sketch9.AttachmentOffset = App.Placement(V(0, 0, 37), App.Rotation())
sketch9.addGeometry([
    Part.LineSegment(V(53.3, 35.1, 0), V(53.3, 33.3, 0)),
    Part.LineSegment(V(53.3, 33.3, 0), V(54.2, 33.3, 0)),
    Part.LineSegment(V(54.2, 33.3, 0), V(54.2, 35.1, 0)),
    Part.LineSegment(V(54.2, 35.1, 0), V(53.3, 35.1, 0)),
    Part.LineSegment(V(53.3, -18.4, 0), V(53.3, -26.6, 0)),
    Part.LineSegment(V(53.3, -26.6, 0), V(54.2, -26.6, 0)),
    Part.LineSegment(V(54.2, -26.6, 0), V(54.2, -18.4, 0)),
    Part.LineSegment(V(54.2, -18.4, 0), V(53.3, -18.4, 0)),
    Part.LineSegment(V(53.3, 54.9, 0), V(53.3, 51.8, 0)),
    Part.LineSegment(V(53.3, 51.8, 0), V(54.2, 51.8, 0)),
    Part.LineSegment(V(54.2, 51.8, 0), V(54.2, 54.9, 0)),
    Part.LineSegment(V(54.2, 54.9, 0), V(53.3, 54.9, 0)),
], False)
sketch9.addConstraint([
    Sketcher.Constraint("Coincident", 0, 2, 1, 1),
    Sketcher.Constraint("Coincident", 1, 2, 2, 1),
    Sketcher.Constraint("Coincident", 2, 2, 3, 1),
    Sketcher.Constraint("Coincident", 3, 2, 0, 1),
    Sketcher.Constraint("Coincident", 4, 2, 5, 1),
    Sketcher.Constraint("Coincident", 5, 2, 6, 1),
    Sketcher.Constraint("Coincident", 6, 2, 7, 1),
    Sketcher.Constraint("Coincident", 7, 2, 4, 1),
    Sketcher.Constraint("Coincident", 8, 2, 9, 1),
    Sketcher.Constraint("Coincident", 9, 2, 10, 1),
    Sketcher.Constraint("Coincident", 10, 2, 11, 1),
    Sketcher.Constraint("Coincident", 11, 2, 8, 1),
    Sketcher.Constraint("Vertical", 0),
    Sketcher.Constraint("Horizontal", 1),
    Sketcher.Constraint("Vertical", 2),
    Sketcher.Constraint("Horizontal", 3),
    Sketcher.Constraint("Vertical", 4),
    Sketcher.Constraint("Horizontal", 5),
    Sketcher.Constraint("Vertical", 6),
    Sketcher.Constraint("Horizontal", 7),
    Sketcher.Constraint("Vertical", 8),
    Sketcher.Constraint("Horizontal", 9),
    Sketcher.Constraint("Vertical", 10),
    Sketcher.Constraint("Horizontal", 11),
    Sketcher.Constraint("Vertical", 3, 2, 4, 2),
    Sketcher.Constraint("Vertical", 2, 2, 5, 2),
    Sketcher.Constraint("Vertical", 7, 2, 8, 2),
    Sketcher.Constraint("Vertical", 6, 2, 9, 2),
    Sketcher.Constraint("DistanceX", 1, 1, 1, 2, Q("0.9 mm")),
    Sketcher.Constraint("DistanceX", -1, 1, 0, 2, Q("53.3 mm")),
    Sketcher.Constraint("DistanceY", 6, 2, 1, 2, Q("51.700001 mm")),
    Sketcher.Constraint("DistanceY", 3, 2, 8, 2, Q("16.7 mm")),
    Sketcher.Constraint("DistanceY", 6, 2, -1, 1, Q("18.424999 mm")),
    Sketcher.Constraint("DistanceY", 1, 2, 10, 2, Q("21.625 mm")),
    Sketcher.Constraint("DistanceY", 0, 2, 0, 1, Q("1.824994 mm")),
    Sketcher.Constraint("DistanceY", 4, 2, 4, 1, Q("8.175815 mm")),
])
pocket3 = body.newObject("PartDesign::Pocket", "Pocket002")
pocket3.Profile = sketch9
pocket3.Length = 2

sketch10 = body.newObject("Sketcher::SketchObject", "Sketch009")
sketch10.AttachmentSupport = (doc.getObject("YZ_Plane"), [""])
sketch10.MapMode = "FlatFace"
sketch10.AttachmentOffset = App.Placement(V(0, 0, 53.3), App.Rotation())
sketch10.addGeometry([
    Part.LineSegment(V(-36.8, 54.9, 0), V(-37, 54.9, 0)),
    Part.LineSegment(V(-37, 54.9, 0), V(-37, 51.8, 0)),
    Part.LineSegment(V(-37, 51.8, 0), V(-36.8, 51.8, 0)),
    Part.LineSegment(V(-36.8, 51.8, 0), V(-36.8, 54.9, 0)),
    Part.LineSegment(V(-36.8, 35.1, 0), V(-37, 35.1, 0)),
    Part.LineSegment(V(-37, 35.1, 0), V(-37, 33.28, 0)),
    Part.LineSegment(V(-37, 33.28, 0), V(-36.8, 33.28, 0)),
    Part.LineSegment(V(-36.8, 33.28, 0), V(-36.8, 35.1, 0)),
    Part.LineSegment(V(-36.8, -18.42, 0), V(-37, -18.42, 0)),
    Part.LineSegment(V(-37, -18.42, 0), V(-37, -26.6, 0)),
    Part.LineSegment(V(-37, -26.6, 0), V(-36.8, -26.6, 0)),
    Part.LineSegment(V(-36.8, -26.6, 0), V(-36.8, -18.42, 0)),
], False)
sketch10.addConstraint([
    Sketcher.Constraint("Coincident", 0, 2, 1, 1),
    Sketcher.Constraint("Coincident", 1, 2, 2, 1),
    Sketcher.Constraint("Coincident", 2, 2, 3, 1),
    Sketcher.Constraint("Coincident", 3, 2, 0, 1),
    Sketcher.Constraint("Coincident", 4, 2, 5, 1),
    Sketcher.Constraint("Coincident", 5, 2, 6, 1),
    Sketcher.Constraint("Coincident", 6, 2, 7, 1),
    Sketcher.Constraint("Coincident", 7, 2, 4, 1),
    Sketcher.Constraint("Coincident", 8, 2, 9, 1),
    Sketcher.Constraint("Coincident", 9, 2, 10, 1),
    Sketcher.Constraint("Coincident", 10, 2, 11, 1),
    Sketcher.Constraint("Coincident", 11, 2, 8, 1),
    Sketcher.Constraint("Horizontal", 0),
    Sketcher.Constraint("Vertical", 1),
    Sketcher.Constraint("Horizontal", 2),
    Sketcher.Constraint("Vertical", 3),
    Sketcher.Constraint("Horizontal", 4),
    Sketcher.Constraint("Vertical", 5),
    Sketcher.Constraint("Horizontal", 6),
    Sketcher.Constraint("Vertical", 7),
    Sketcher.Constraint("Horizontal", 8),
    Sketcher.Constraint("Vertical", 9),
    Sketcher.Constraint("Horizontal", 10),
    Sketcher.Constraint("Vertical", 11),
    Sketcher.Constraint("Vertical", 1, 2, 4, 2),
    Sketcher.Constraint("Vertical", 3, 2, 6, 2),
    Sketcher.Constraint("Vertical", 5, 2, 8, 2),
    Sketcher.Constraint("Vertical", 7, 2, 10, 2),
    Sketcher.Constraint("DistanceX", 0, 2, 0, 1, Q("0.2 mm")),
    Sketcher.Constraint("DistanceX", 0, 2, -1, 1, Q("37 mm")),
    Sketcher.Constraint("DistanceY", 4, 2, 1, 2, Q("16.7 mm")),
    Sketcher.Constraint("DistanceY", 8, 2, 5, 2, Q("51.700001 mm")),
    Sketcher.Constraint("DistanceY", 8, 2, -1, 1, Q("18.424999 mm")),
    Sketcher.Constraint("DistanceY", 5, 2, 0, 2, Q("21.625 mm")),
    Sketcher.Constraint("DistanceY", 1, 2, 1, 1, Q("3.100007 mm")),
    Sketcher.Constraint("DistanceY", 9, 2, 9, 1, Q("8.175815 mm")),
])
pocket4 = body.newObject("PartDesign::Pocket", "Pocket003")
pocket4.Profile = sketch10
pocket4.Length = 0.7

sketch11 = body.newObject("Sketcher::SketchObject", "Sketch010")
sketch11.AttachmentSupport = (doc.getObject("XZ_Plane"), [""])
sketch11.MapMode = "FlatFace"
sketch11.addGeometry([
    Part.LineSegment(V(-61, -83, 0), V(-61, 83, 0)),
    Part.LineSegment(V(-61, 83, 0), V(54, 83, 0)),
    Part.LineSegment(V(54, 83, 0), V(54, -83, 0)),
    Part.LineSegment(V(54, -83, 0), V(-61, -83, 0)),
], False)
sketch11.addConstraint([
    Sketcher.Constraint("Coincident", 0, 2, 1, 1),
    Sketcher.Constraint("Coincident", 1, 2, 2, 1),
    Sketcher.Constraint("Coincident", 2, 2, 3, 1),
    Sketcher.Constraint("Coincident", 3, 2, 0, 1),
    Sketcher.Constraint("Vertical", 0),
    Sketcher.Constraint("Horizontal", 1),
    Sketcher.Constraint("Vertical", 2),
    Sketcher.Constraint("Horizontal", 3),
    Sketcher.Constraint("DistanceX", 1, 1, 1, 2, Q("115.4 mm")),
    Sketcher.Constraint("DistanceY", 0, 1, 0, 2, Q("166.2 mm")),
    Sketcher.Constraint("DistanceX", 0, 2, -1, 1, Q("61.2 mm")),
    Sketcher.Constraint("DistanceY", -1, 1, 0, 2, Q("83.1 mm")),
])
pocket5 = body.newObject("PartDesign::Pocket", "Pocket004")
pocket5.Profile = sketch11
pocket5.Length = 4.5
pocket5.Reversed = True

sketch12 = body.newObject("Sketcher::SketchObject", "Sketch011")
sketch12.AttachmentSupport = (doc.getObject("XZ_Plane"), [""])
sketch12.MapMode = "FlatFace"
sketch12.AttachmentOffset = App.Placement(V(0, 0, 4.5), App.Rotation())
sketch12.addGeometry([
    Part.LineSegment(V(-59, -83, 0), V(-59, 83, 0)),
    Part.LineSegment(V(-59, 83, 0), V(54, 83, 0)),
    Part.LineSegment(V(54, 83, 0), V(54, -83, 0)),
    Part.LineSegment(V(54, -83, 0), V(-59, -83, 0)),
], False)
sketch12.addConstraint([
    Sketcher.Constraint("Coincident", 0, 2, 1, 1),
    Sketcher.Constraint("Coincident", 1, 2, 2, 1),
    Sketcher.Constraint("Coincident", 2, 2, 3, 1),
    Sketcher.Constraint("Coincident", 3, 2, 0, 1),
    Sketcher.Constraint("Vertical", 0),
    Sketcher.Constraint("Horizontal", 1),
    Sketcher.Constraint("Vertical", 2),
    Sketcher.Constraint("Horizontal", 3),
    Sketcher.Constraint("DistanceX", 1, 1, 1, 2, Q("113.6 mm")),
    Sketcher.Constraint("DistanceY", 0, 1, 0, 2, Q("166.2 mm")),
    Sketcher.Constraint("DistanceX", 0, 2, -1, 1, Q("59.4 mm")),
    Sketcher.Constraint("DistanceY", -1, 1, 0, 2, Q("83.1 mm")),
])
pad6 = body.newObject("PartDesign::Pad", "Pad005")
pad6.Profile = sketch12
pad6.Length = 1.6
pad6.Reversed = True

sketch13 = body.newObject("Sketcher::SketchObject", "Sketch012")
sketch13.AttachmentSupport = (doc.getObject("XZ_Plane"), [""])
sketch13.MapMode = "FlatFace"
sketch13.AttachmentOffset = App.Placement(V(0, 0, 2.9), App.Rotation())
sketch13.addGeometry([
    Part.LineSegment(V(-61, -75, 0), V(-61, 75, 0)),
    Part.LineSegment(V(-61, 75, 0), V(-54, 75, 0)),
    Part.LineSegment(V(-54, 75, 0), V(-54, -75, 0)),
    Part.LineSegment(V(-54, -75, 0), V(-61, -75, 0)),
], False)
sketch13.addConstraint([
    Sketcher.Constraint("Coincident", 0, 2, 1, 1),
    Sketcher.Constraint("Coincident", 1, 2, 2, 1),
    Sketcher.Constraint("Coincident", 2, 2, 3, 1),
    Sketcher.Constraint("Coincident", 3, 2, 0, 1),
    Sketcher.Constraint("Vertical", 0),
    Sketcher.Constraint("Horizontal", 1),
    Sketcher.Constraint("Vertical", 2),
    Sketcher.Constraint("Horizontal", 3),
    Sketcher.Constraint("DistanceX", 1, 1, 1, 2, Q("7 mm")),
    Sketcher.Constraint("DistanceY", 0, 1, 0, 2, Q("150.2 mm")),
    Sketcher.Constraint("DistanceX", 0, 2, -1, 1, Q("61.2 mm")),
    Sketcher.Constraint("DistanceY", -1, 1, 0, 2, Q("75.1 mm")),
])
pocket6 = body.newObject("PartDesign::Pocket", "Pocket005")
pocket6.Profile = sketch13
pocket6.Length = 1.6
pocket6.Reversed = True

sketch14 = body.newObject("Sketcher::SketchObject", "Sketch013")
sketch14.AttachmentSupport = (doc.getObject("XZ_Plane"), [""])
sketch14.MapMode = "FlatFace"
sketch14.AttachmentOffset = App.Placement(V(0, 0, 4.5), App.Rotation())
sketch14.addGeometry(Part.Circle(V(5.2, 49, 0), V(0, 0, 1), 3.6), False)
sketch14.addConstraint([
    Sketcher.Constraint("Diameter", 0, Q("7.3 mm")),
    Sketcher.Constraint("DistanceX", -1, 1, 0, 3, Q("5.16926 mm")),
    Sketcher.Constraint("DistanceY", -1, 1, 0, 3, Q("49.000122 mm")),
])
pad7 = body.newObject("PartDesign::Pad", "Pad006")
pad7.Profile = sketch14
pad7.Length = 5

sketch15 = body.newObject("Sketcher::SketchObject", "Sketch014")
sketch15.AttachmentSupport = (doc.getObject("XZ_Plane"), [""])
sketch15.MapMode = "FlatFace"
sketch15.AttachmentOffset = App.Placement(V(0, 0, 9.5), App.Rotation())
sketch15.addGeometry(Part.Circle(V(5.2, 49, 0), V(0, 0, 1), 2.6), False)
sketch15.addConstraint([
    Sketcher.Constraint("Diameter", 0, Q("5.3 mm")),
    Sketcher.Constraint("DistanceX", -1, 1, 0, 3, Q("5.16926 mm")),
    Sketcher.Constraint("DistanceY", -1, 1, 0, 3, Q("49.000122 mm")),
])
doc.recompute()
hole = body.newObject("PartDesign::Hole", "Hole")
hole.Profile = sketch15
hole.ThreadType = "None"
hole.Diameter = 5.3
hole.DepthType = "ThroughAll"
hole.HoleCutType = "Countersink"
hole.HoleCutDiameter = 6.3
hole.HoleCutCountersinkAngle = 90

sketch16 = body.newObject("Sketcher::SketchObject", "Sketch015")
sketch16.AttachmentSupport = (doc.getObject("XZ_Plane"), [""])
sketch16.MapMode = "FlatFace"
sketch16.AttachmentOffset = App.Placement(V(0, 0, 4.5), App.Rotation())
sketch16.addGeometry(Part.Circle(V(-18.2, -53.7, 0), V(0, 0, 1), 3.6), False)
sketch16.addConstraint([
    Sketcher.Constraint("Diameter", 0, Q("7.3 mm")),
    Sketcher.Constraint("DistanceX", 0, 3, -1, 1, Q("18.21427 mm")),
    Sketcher.Constraint("DistanceY", 0, 3, -1, 1, Q("53.725113 mm")),
])
pad8 = body.newObject("PartDesign::Pad", "Pad007")
pad8.Profile = sketch16
pad8.Length = 5

sketch17 = body.newObject("Sketcher::SketchObject", "Sketch016")
sketch17.AttachmentSupport = (doc.getObject("XZ_Plane"), [""])
sketch17.MapMode = "FlatFace"
sketch17.AttachmentOffset = App.Placement(V(0, 0, 4.5), App.Rotation())
sketch17.addGeometry(Part.Circle(V(16.1, 49, 0), V(0, 0, 1), 3.6), False)
sketch17.addConstraint([
    Sketcher.Constraint("Diameter", 0, Q("7.3 mm")),
    Sketcher.Constraint("DistanceX", -1, 1, 0, 3, Q("16.144266 mm")),
    Sketcher.Constraint("DistanceY", -1, 1, 0, 3, Q("49.000122 mm")),
])
pad9 = body.newObject("PartDesign::Pad", "Pad008")
pad9.Profile = sketch17
pad9.Length = 5

sketch18 = body.newObject("Sketcher::SketchObject", "Sketch017")
sketch18.AttachmentSupport = (doc.getObject("XZ_Plane"), [""])
sketch18.MapMode = "FlatFace"
sketch18.AttachmentOffset = App.Placement(V(0, 0, 4.5), App.Rotation())
sketch18.addGeometry(Part.Circle(V(-11, -53.7, 0), V(0, 0, 1), 3.6), False)
sketch18.addConstraint([
    Sketcher.Constraint("Diameter", 0, Q("7.3 mm")),
    Sketcher.Constraint("DistanceX", 0, 3, -1, 1, Q("10.974999 mm")),
    Sketcher.Constraint("DistanceY", 0, 3, -1, 1, Q("53.725113 mm")),
])
pad10 = body.newObject("PartDesign::Pad", "Pad009")
pad10.Profile = sketch18
pad10.Length = 5

sketch19 = body.newObject("Sketcher::SketchObject", "Sketch018")
sketch19.AttachmentSupport = (doc.getObject("XZ_Plane"), [""])
sketch19.MapMode = "FlatFace"
sketch19.AttachmentOffset = App.Placement(V(0, 0, 4.5), App.Rotation())
sketch19.addGeometry(Part.Circle(V(5.2, 59, 0), V(0, 0, 1), 3.6), False)
sketch19.addConstraint([
    Sketcher.Constraint("Diameter", 0, Q("7.3 mm")),
    Sketcher.Constraint("DistanceX", -1, 1, 0, 3, Q("5.172398 mm")),
    Sketcher.Constraint("DistanceY", -1, 1, 0, 3, Q("58.982824 mm")),
])
pad11 = body.newObject("PartDesign::Pad", "Pad010")
pad11.Profile = sketch19
pad11.Length = 5

sketch20 = body.newObject("Sketcher::SketchObject", "Sketch019")
sketch20.AttachmentSupport = (doc.getObject("XZ_Plane"), [""])
sketch20.MapMode = "FlatFace"
sketch20.AttachmentOffset = App.Placement(V(0, 0, 4.5), App.Rotation())
sketch20.addGeometry(Part.Circle(V(16.1, 59, 0), V(0, 0, 1), 3.6), False)
sketch20.addConstraint([
    Sketcher.Constraint("Diameter", 0, Q("7.3 mm")),
    Sketcher.Constraint("DistanceX", -1, 1, 0, 3, Q("16.144266 mm")),
    Sketcher.Constraint("DistanceY", -1, 1, 0, 3, Q("58.982824 mm")),
])
pad12 = body.newObject("PartDesign::Pad", "Pad011")
pad12.Profile = sketch20
pad12.Length = 5

sketch21 = body.newObject("Sketcher::SketchObject", "Sketch020")
sketch21.AttachmentSupport = (doc.getObject("XZ_Plane"), [""])
sketch21.MapMode = "FlatFace"
sketch21.AttachmentOffset = App.Placement(V(0, 0, 9.5), App.Rotation())
sketch21.addGeometry([
    Part.Circle(V(16.1, 59, 0), V(0, 0, 1), 2.6),
    Part.Circle(V(16.1, 49, 0), V(0, 0, 1), 2.6),
    Part.Circle(V(5.2, 59, 0), V(0, 0, 1), 2.6),
    Part.Circle(V(-11, -53.7, 0), V(0, 0, 1), 2.6),
    Part.Circle(V(-18.2, -53.7, 0), V(0, 0, 1), 2.6),
], False)
sketch21.addConstraint([
    Sketcher.Constraint("Equal", 0, 1),
    Sketcher.Constraint("Equal", 1, 2),
    Sketcher.Constraint("Equal", 2, 3),
    Sketcher.Constraint("Equal", 3, 4),
    Sketcher.Constraint("Horizontal", 0, 3, 2, 3),
    Sketcher.Constraint("Horizontal", 3, 3, 4, 3),
    Sketcher.Constraint("Vertical", 0, 3, 1, 3),
    Sketcher.Constraint("Diameter", 0, Q("5.3 mm")),
    Sketcher.Constraint("DistanceX", 3, 3, -1, 1, Q("10.974999 mm")),
    Sketcher.Constraint("DistanceX", -1, 1, 2, 3, Q("5.172398 mm")),
    Sketcher.Constraint("DistanceY", 1, 3, 0, 3, Q("9.982702 mm")),
    Sketcher.Constraint("DistanceX", 4, 3, -1, 1, Q("18.21427 mm")),
    Sketcher.Constraint("DistanceX", -1, 1, 0, 3, Q("16.144266 mm")),
    Sketcher.Constraint("DistanceY", -1, 1, 0, 3, Q("58.982824 mm")),
    Sketcher.Constraint("DistanceY", 3, 3, -1, 1, Q("53.725113 mm")),
])
doc.recompute()
hole2 = body.newObject("PartDesign::Hole", "Hole001")
hole2.Profile = sketch21
hole2.ThreadType = "None"
hole2.Diameter = 5.3
hole2.DepthType = "ThroughAll"
hole2.HoleCutType = "Countersink"
hole2.HoleCutDiameter = 6.3
hole2.HoleCutCountersinkAngle = 90
doc.recompute()

fillet2 = body.newObject("PartDesign::Fillet", "Fillet001")
fillet2.Base = (hole2, edges_at(hole2, [
    (54.2, -19.95, 83.1),
    (54.2, -19.95, -83.1),
    (-59.4, -19.95, -83.1),
    (-59.4, -19.95, 83.1),
    (-2.6, -2.9, 83.1),
    (54.2, -2.9, 0),
    (-2.6, -2.9, -83.1),
    (-59.4, -2.9, -79.1),
    (-59.4, -2.9, 79.1),
]))
fillet2.Radius = 1

sketch22 = body.newObject("Sketcher::SketchObject", "Sketch021")
sketch22.AttachmentSupport = (doc.getObject("XZ_Plane"), [""])
sketch22.MapMode = "FlatFace"
sketch22.AttachmentOffset = App.Placement(V(0, 0, 4.5), App.Rotation())
sketch22.addGeometry([
    Part.LineSegment(V(23, 82, 0), V(23, -82, 0)),
    Part.LineSegment(V(23, -82, 0), V(33, -82, 0)),
    Part.LineSegment(V(33, -82, 0), V(33, 82, 0)),
    Part.LineSegment(V(33, 82, 0), V(23, 82, 0)),
    Part.LineSegment(V(-49, 82, 0), V(-49, -82, 0)),
    Part.LineSegment(V(-49, -82, 0), V(-39, -82, 0)),
    Part.LineSegment(V(-39, -82, 0), V(-39, 82, 0)),
    Part.LineSegment(V(-39, 82, 0), V(-49, 82, 0)),
], False)
sketch22.addConstraint([
    Sketcher.Constraint("Coincident", 0, 2, 1, 1),
    Sketcher.Constraint("Coincident", 1, 2, 2, 1),
    Sketcher.Constraint("Coincident", 2, 2, 3, 1),
    Sketcher.Constraint("Coincident", 3, 2, 0, 1),
    Sketcher.Constraint("Coincident", 4, 2, 5, 1),
    Sketcher.Constraint("Coincident", 5, 2, 6, 1),
    Sketcher.Constraint("Coincident", 6, 2, 7, 1),
    Sketcher.Constraint("Coincident", 7, 2, 4, 1),
    Sketcher.Constraint("Vertical", 0),
    Sketcher.Constraint("Horizontal", 1),
    Sketcher.Constraint("Vertical", 2),
    Sketcher.Constraint("Horizontal", 3),
    Sketcher.Constraint("Vertical", 4),
    Sketcher.Constraint("Horizontal", 5),
    Sketcher.Constraint("Vertical", 6),
    Sketcher.Constraint("Horizontal", 7),
    Sketcher.Constraint("Horizontal", 1, 2, 4, 2),
    Sketcher.Constraint("Horizontal", 3, 2, 6, 2),
    Sketcher.Constraint("Equal", 3, 5),
    Sketcher.Constraint("DistanceX", 1, 1, 1, 2, Q("10 mm")),
    Sketcher.Constraint("DistanceY", 0, 2, 0, 1, Q("163 mm")),
    Sketcher.Constraint("DistanceX", 4, 2, 0, 2, Q("72 mm")),
    Sketcher.Constraint("DistanceX", -1, 1, 0, 2, Q("22.6 mm")),
    Sketcher.Constraint("DistanceY", 0, 2, -1, 1, Q("81.5 mm")),
])
pad13 = body.newObject("PartDesign::Pad", "Pad012")
pad13.Profile = sketch22
pad13.Length = 6

doc.recompute()
